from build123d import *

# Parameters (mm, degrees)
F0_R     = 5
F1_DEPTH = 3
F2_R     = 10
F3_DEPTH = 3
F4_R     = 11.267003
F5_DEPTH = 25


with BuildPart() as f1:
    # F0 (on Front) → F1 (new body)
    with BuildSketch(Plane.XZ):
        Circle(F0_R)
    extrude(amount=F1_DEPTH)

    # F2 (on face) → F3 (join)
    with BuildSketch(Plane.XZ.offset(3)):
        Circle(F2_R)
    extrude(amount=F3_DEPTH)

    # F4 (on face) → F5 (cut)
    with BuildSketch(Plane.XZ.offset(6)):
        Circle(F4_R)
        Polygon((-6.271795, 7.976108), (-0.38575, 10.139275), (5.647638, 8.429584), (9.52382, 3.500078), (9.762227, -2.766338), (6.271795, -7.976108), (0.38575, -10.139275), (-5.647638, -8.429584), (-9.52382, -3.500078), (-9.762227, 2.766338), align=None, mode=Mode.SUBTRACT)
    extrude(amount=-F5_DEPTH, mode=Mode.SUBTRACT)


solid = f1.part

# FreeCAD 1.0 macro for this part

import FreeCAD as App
import Part
import Sketcher
from FreeCAD import Vector

doc = App.newDocument("Part")
body = doc.addObject("PartDesign::Body", "Body")

# Sketch on XZ plane
sketch1 = body.newObject("Sketcher::SketchObject", "Sketch")
sketch1.AttachmentSupport = (doc.getObject("XZ_Plane"), [""])
sketch1.MapMode = "FlatFace"
sketch1.addGeometry(Part.Circle(Vector(0, 0, 0), Vector(0, 0, 1), 5), False)
sketch1.addConstraint(Sketcher.Constraint("Coincident", 0, 3, -1, 1))
sketch1.addConstraint(Sketcher.Constraint("Diameter", 0, 10.0))
pad1 = body.newObject("PartDesign::Pad", "Pad")
pad1.Profile = sketch1
pad1.Length = 3

# Sketch on XZ plane
sketch2 = body.newObject("Sketcher::SketchObject", "Sketch001")
sketch2.AttachmentSupport = (doc.getObject("XZ_Plane"), [""])
sketch2.MapMode = "FlatFace"
sketch2.AttachmentOffset = App.Placement(Vector(0, 0, 3), App.Rotation())
sketch2.addGeometry(Part.Circle(Vector(0, 0, 0), Vector(0, 0, 1), 10), False)
sketch2.addConstraint(Sketcher.Constraint("Coincident", 0, 3, -1, 1))
sketch2.addConstraint(Sketcher.Constraint("Diameter", 0, 20.0))
pad2 = body.newObject("PartDesign::Pad", "Pad001")
pad2.Profile = sketch2
pad2.Length = 3

# Sketch on XZ plane
sketch3 = body.newObject("Sketcher::SketchObject", "Sketch002")
sketch3.AttachmentSupport = (doc.getObject("XZ_Plane"), [""])
sketch3.MapMode = "FlatFace"
sketch3.AttachmentOffset = App.Placement(Vector(0, 0, 6), App.Rotation())
sketch3.addGeometry(Part.Circle(Vector(0, 0, 0), Vector(0, 0, 1), 11), False)
sketch3.addGeometry(Part.LineSegment(Vector(-10, 3, 0), Vector(-6, 8, 0)), False)
sketch3.addGeometry(Part.LineSegment(Vector(-6, 8, 0), Vector(0, 10, 0)), False)
sketch3.addGeometry(Part.LineSegment(Vector(0, 10, 0), Vector(6, 8, 0)), False)
sketch3.addGeometry(Part.LineSegment(Vector(6, 8, 0), Vector(10, 4, 0)), False)
sketch3.addGeometry(Part.LineSegment(Vector(10, 4, 0), Vector(10, -3, 0)), False)
sketch3.addGeometry(Part.LineSegment(Vector(10, -3, 0), Vector(6, -8, 0)), False)
sketch3.addGeometry(Part.LineSegment(Vector(6, -8, 0), Vector(0, -10, 0)), False)
sketch3.addGeometry(Part.LineSegment(Vector(0, -10, 0), Vector(-6, -8, 0)), False)
sketch3.addGeometry(Part.LineSegment(Vector(-6, -8, 0), Vector(-10, -4, 0)), False)
sketch3.addGeometry(Part.LineSegment(Vector(-10, -4, 0), Vector(-10, 3, 0)), False)
sketch3.addConstraint(Sketcher.Constraint("Coincident", 1, 2, 2, 1))
sketch3.addConstraint(Sketcher.Constraint("Coincident", 2, 2, 3, 1))
sketch3.addConstraint(Sketcher.Constraint("Coincident", 3, 2, 4, 1))
sketch3.addConstraint(Sketcher.Constraint("Coincident", 4, 2, 5, 1))
sketch3.addConstraint(Sketcher.Constraint("Coincident", 5, 2, 6, 1))
sketch3.addConstraint(Sketcher.Constraint("Coincident", 6, 2, 7, 1))
sketch3.addConstraint(Sketcher.Constraint("Coincident", 7, 2, 8, 1))
sketch3.addConstraint(Sketcher.Constraint("Coincident", 8, 2, 9, 1))
sketch3.addConstraint(Sketcher.Constraint("Coincident", 9, 2, 10, 1))
sketch3.addConstraint(Sketcher.Constraint("Coincident", 10, 2, 1, 1))
sketch3.addConstraint(Sketcher.Constraint("Coincident", 0, 3, -1, 1))
sketch3.addConstraint(Sketcher.Constraint("Symmetric", 1, 2, 6, 2, -1, 1))
sketch3.addConstraint(Sketcher.Constraint("Symmetric", 2, 2, 7, 2, -1, 1))
sketch3.addConstraint(Sketcher.Constraint("Symmetric", 3, 2, 8, 2, -1, 1))
sketch3.addConstraint(Sketcher.Constraint("Symmetric", 4, 2, 9, 2, -1, 1))
sketch3.addConstraint(Sketcher.Constraint("Symmetric", 5, 2, 10, 2, -1, 1))
sketch3.addConstraint(Sketcher.Constraint("Equal", 1, 2))
sketch3.addConstraint(Sketcher.Constraint("Equal", 2, 3))
sketch3.addConstraint(Sketcher.Constraint("Equal", 3, 4))
sketch3.addConstraint(Sketcher.Constraint("Equal", 4, 5))
sketch3.addConstraint(Sketcher.Constraint("Diameter", 0, 22.534006))
sketch3.addConstraint(Sketcher.Constraint("Distance", 1, 6.27095))
sketch3.addConstraint(Sketcher.Constraint("DistanceX", 2, 2, -1, 1, 0.38575))
sketch3.addConstraint(Sketcher.Constraint("DistanceX", -1, 1, 4, 2, 9.52382))
sketch3.addConstraint(Sketcher.Constraint("DistanceY", 5, 2, -1, 1, 2.766338))
sketch3.addConstraint(Sketcher.Constraint("DistanceY", 3, 2, 2, 2, 1.709691))
sketch3.addConstraint(Sketcher.Constraint("DistanceY", 4, 2, 1, 2, 4.47603))
pocket1 = body.newObject("PartDesign::Pocket", "Pocket")
pocket1.Profile = sketch3
pocket1.Length = 25

doc.recompute()
